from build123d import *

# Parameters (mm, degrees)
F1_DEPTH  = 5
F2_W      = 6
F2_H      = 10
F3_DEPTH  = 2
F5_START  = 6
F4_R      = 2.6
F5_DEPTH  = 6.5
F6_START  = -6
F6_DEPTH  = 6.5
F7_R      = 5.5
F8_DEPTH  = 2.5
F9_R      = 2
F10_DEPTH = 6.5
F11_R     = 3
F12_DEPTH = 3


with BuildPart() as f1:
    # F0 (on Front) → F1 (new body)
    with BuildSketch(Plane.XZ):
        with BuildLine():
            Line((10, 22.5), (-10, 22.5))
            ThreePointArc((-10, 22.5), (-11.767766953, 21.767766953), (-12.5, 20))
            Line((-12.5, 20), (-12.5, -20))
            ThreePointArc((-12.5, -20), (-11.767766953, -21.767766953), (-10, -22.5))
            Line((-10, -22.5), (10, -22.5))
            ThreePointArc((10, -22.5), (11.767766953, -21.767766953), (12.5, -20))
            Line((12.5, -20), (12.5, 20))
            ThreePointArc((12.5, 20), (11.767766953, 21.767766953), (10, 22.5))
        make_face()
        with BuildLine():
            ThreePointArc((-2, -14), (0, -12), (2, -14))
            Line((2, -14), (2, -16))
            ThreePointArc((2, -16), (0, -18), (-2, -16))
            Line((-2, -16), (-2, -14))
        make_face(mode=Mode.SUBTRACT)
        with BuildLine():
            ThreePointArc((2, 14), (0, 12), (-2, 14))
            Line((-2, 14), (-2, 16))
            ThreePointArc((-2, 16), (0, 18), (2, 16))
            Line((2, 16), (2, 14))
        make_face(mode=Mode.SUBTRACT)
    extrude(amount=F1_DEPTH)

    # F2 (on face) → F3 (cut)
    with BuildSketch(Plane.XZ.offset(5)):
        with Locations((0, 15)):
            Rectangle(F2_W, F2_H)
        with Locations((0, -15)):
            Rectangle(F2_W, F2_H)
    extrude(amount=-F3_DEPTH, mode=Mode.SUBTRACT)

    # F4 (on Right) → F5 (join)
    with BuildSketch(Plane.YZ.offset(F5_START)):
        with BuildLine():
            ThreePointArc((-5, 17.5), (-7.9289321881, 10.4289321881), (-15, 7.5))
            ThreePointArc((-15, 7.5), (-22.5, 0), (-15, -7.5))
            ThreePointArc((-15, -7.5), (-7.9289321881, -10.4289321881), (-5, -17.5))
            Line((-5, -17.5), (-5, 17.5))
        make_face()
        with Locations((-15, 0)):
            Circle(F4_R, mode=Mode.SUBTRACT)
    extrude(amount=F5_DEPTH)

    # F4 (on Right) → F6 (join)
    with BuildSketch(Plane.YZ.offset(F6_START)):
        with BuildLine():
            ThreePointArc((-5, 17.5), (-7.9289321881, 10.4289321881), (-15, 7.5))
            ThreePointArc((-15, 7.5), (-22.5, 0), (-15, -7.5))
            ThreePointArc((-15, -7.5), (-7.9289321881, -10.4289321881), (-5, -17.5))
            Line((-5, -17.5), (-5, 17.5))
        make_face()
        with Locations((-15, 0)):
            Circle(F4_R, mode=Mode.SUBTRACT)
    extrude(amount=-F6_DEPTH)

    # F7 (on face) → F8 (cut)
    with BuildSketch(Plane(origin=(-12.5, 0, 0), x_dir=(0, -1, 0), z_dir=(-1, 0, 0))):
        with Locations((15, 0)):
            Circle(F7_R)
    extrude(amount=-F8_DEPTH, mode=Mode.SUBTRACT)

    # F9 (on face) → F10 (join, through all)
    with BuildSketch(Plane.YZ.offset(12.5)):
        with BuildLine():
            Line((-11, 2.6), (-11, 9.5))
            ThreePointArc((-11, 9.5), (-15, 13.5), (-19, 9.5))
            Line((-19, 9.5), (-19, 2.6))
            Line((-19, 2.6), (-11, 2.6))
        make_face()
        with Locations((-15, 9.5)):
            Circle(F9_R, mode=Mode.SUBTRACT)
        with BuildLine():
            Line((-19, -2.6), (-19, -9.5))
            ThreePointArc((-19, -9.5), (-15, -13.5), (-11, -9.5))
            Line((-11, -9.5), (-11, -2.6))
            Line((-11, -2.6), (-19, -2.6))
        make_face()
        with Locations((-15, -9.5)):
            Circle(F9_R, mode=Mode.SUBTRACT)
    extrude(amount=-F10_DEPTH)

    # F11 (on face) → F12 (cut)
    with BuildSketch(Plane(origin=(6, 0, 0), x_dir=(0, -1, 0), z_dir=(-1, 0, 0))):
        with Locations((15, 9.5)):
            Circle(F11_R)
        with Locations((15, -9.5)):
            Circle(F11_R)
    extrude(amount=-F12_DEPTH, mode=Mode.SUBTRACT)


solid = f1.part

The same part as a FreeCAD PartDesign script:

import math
import FreeCAD as App
import Part
import Sketcher
Q = App.Units.Quantity

doc = App.newDocument("Part")
params = doc.addObject("Spreadsheet::Sheet", "Params")
for row, (alias, value) in enumerate([
    ("sketch1_radius", "2 mm"),
    ("sketch1_radius2", "2.5 mm"),
    ("sketch1_width", "20 mm"),
    ("sketch1_height", "40 mm"),
    ("sketch1_height2", "2 mm"),
    ("pad1_length", "5 mm"),
    ("sketch2_width", "6 mm"),
    ("sketch2_height", "10 mm"),
    ("pocket1_length", "2 mm"),
    ("sketch3_radius", "10 mm"),
    ("sketch3_diameter", "5.2 mm"),
    ("sketch3_radius2", "7.5 mm"),
    ("pad2_length", "6.5 mm"),
    ("sketch4_radius", "10 mm"),
    ("sketch4_diameter", "5.2 mm"),
    ("sketch4_radius2", "7.5 mm"),
    ("pad3_length", "6.5 mm"),
    ("sketch5_diameter", "11 mm"),
    ("pocket2_length", "2.5 mm"),
    ("sketch6_diameter", "4 mm"),
    ("sketch6_radius", "4 mm"),
    ("sketch6_height", "6.9 mm"),
    ("pad4_length", "6.5 mm"),
    ("sketch7_diameter", "6 mm"),
    ("pocket3_length", "3 mm"),
], start=1):
    params.set(f"A{row}", alias)
    params.set(f"B{row}", "=" + value)
    params.setAlias(f"B{row}", alias)

body = doc.addObject("PartDesign::Body", "Body")

# Sketch on XZ plane
sketch1 = doc.addObject("Sketcher::SketchObject", "Sketch")
body.addObject(sketch1)
sketch1.AttachmentSupport = (doc.XZ_Plane, [""])
sketch1.MapMode = "FlatFace"
sketch1.addGeometry(Part.LineSegment(App.Vector(10, 22.5, 0), App.Vector(-10, 22.5, 0)), False)
sketch1.addGeometry(Part.ArcOfCircle(Part.Circle(App.Vector(-10, 20, 0), App.Vector(0, 0, 1), 2.5), math.radians(90), math.radians(180)), False)
sketch1.addGeometry(Part.LineSegment(App.Vector(-12.5, 20, 0), App.Vector(-12.5, -20, 0)), False)
sketch1.addGeometry(Part.ArcOfCircle(Part.Circle(App.Vector(-10, -20, 0), App.Vector(0, 0, 1), 2.5), math.radians(180), math.radians(270)), False)
sketch1.addGeometry(Part.LineSegment(App.Vector(-10, -22.5, 0), App.Vector(10, -22.5, 0)), False)
sketch1.addGeometry(Part.ArcOfCircle(Part.Circle(App.Vector(10, -20, 0), App.Vector(0, 0, 1), 2.5), math.radians(-90), math.radians(0)), False)
sketch1.addGeometry(Part.LineSegment(App.Vector(12.5, -20, 0), App.Vector(12.5, 20, 0)), False)
sketch1.addGeometry(Part.ArcOfCircle(Part.Circle(App.Vector(10, 20, 0), App.Vector(0, 0, 1), 2.5), math.radians(0), math.radians(90)), False)
sketch1.addGeometry(Part.LineSegment(App.Vector(-2, -16, 0), App.Vector(-2, -14, 0)), False)
sketch1.addGeometry(Part.ArcOfCircle(Part.Circle(App.Vector(0, -14, 0), App.Vector(0, 0, 1), 2), math.radians(0), math.radians(180)), False)
sketch1.addGeometry(Part.LineSegment(App.Vector(2, -14, 0), App.Vector(2, -16, 0)), False)
sketch1.addGeometry(Part.ArcOfCircle(Part.Circle(App.Vector(0, -16, 0), App.Vector(0, 0, 1), 2), math.radians(180), math.radians(360)), False)
sketch1.addGeometry(Part.LineSegment(App.Vector(2, 16, 0), App.Vector(2, 14, 0)), False)
sketch1.addGeometry(Part.ArcOfCircle(Part.Circle(App.Vector(0, 14, 0), App.Vector(0, 0, 1), 2), math.radians(180), math.radians(360)), False)
sketch1.addGeometry(Part.LineSegment(App.Vector(-2, 14, 0), App.Vector(-2, 16, 0)), False)
sketch1.addGeometry(Part.ArcOfCircle(Part.Circle(App.Vector(0, 16, 0), App.Vector(0, 0, 1), 2), math.radians(0), math.radians(180)), False)
sketch1.addConstraint(Sketcher.Constraint("Tangent", 0, 2, 1, 1))
sketch1.addConstraint(Sketcher.Constraint("Tangent", 1, 2, 2, 1))
sketch1.addConstraint(Sketcher.Constraint("Tangent", 2, 2, 3, 1))
sketch1.addConstraint(Sketcher.Constraint("Tangent", 3, 2, 4, 1))
sketch1.addConstraint(Sketcher.Constraint("Tangent", 4, 2, 5, 1))
sketch1.addConstraint(Sketcher.Constraint("Tangent", 5, 2, 6, 1))
sketch1.addConstraint(Sketcher.Constraint("Tangent", 6, 2, 7, 1))
sketch1.addConstraint(Sketcher.Constraint("Tangent", 7, 2, 0, 1))
sketch1.addConstraint(Sketcher.Constraint("Tangent", 8, 2, 9, 2))
sketch1.addConstraint(Sketcher.Constraint("Tangent", 9, 1, 10, 1))
sketch1.addConstraint(Sketcher.Constraint("Tangent", 10, 2, 11, 2))
sketch1.addConstraint(Sketcher.Constraint("Tangent", 11, 1, 8, 1))
sketch1.addConstraint(Sketcher.Constraint("Tangent", 12, 2, 13, 2))
sketch1.addConstraint(Sketcher.Constraint("Tangent", 13, 1, 14, 1))
sketch1.addConstraint(Sketcher.Constraint("Tangent", 14, 2, 15, 2))
sketch1.addConstraint(Sketcher.Constraint("Tangent", 15, 1, 12, 1))
sketch1.addConstraint(Sketcher.Constraint("Horizontal", 0))
sketch1.addConstraint(Sketcher.Constraint("Vertical", 2))
sketch1.addConstraint(Sketcher.Constraint("Horizontal", 4))
sketch1.addConstraint(Sketcher.Constraint("Vertical", 6))
sketch1.addConstraint(Sketcher.Constraint("Vertical", 8))
sketch1.addConstraint(Sketcher.Constraint("Vertical", 10))
sketch1.addConstraint(Sketcher.Constraint("Vertical", 12))
sketch1.addConstraint(Sketcher.Constraint("Vertical", 14))
sketch1.addConstraint(Sketcher.Constraint("Equal", 1, 3))
sketch1.addConstraint(Sketcher.Constraint("Equal", 3, 5))
sketch1.addConstraint(Sketcher.Constraint("Equal", 5, 7))
sketch1.addConstraint(Sketcher.Constraint("Equal", 11, 13))
sketch1.addConstraint(Sketcher.Constraint("Symmetric", 1, 3, 5, 3, -1, 1))
sketch1.addConstraint(Sketcher.Constraint("Symmetric", 9, 3, 13, 3, -1, 1))
sketch1.addConstraint(Sketcher.Constraint("Symmetric", 11, 3, 15, 3, -1))
sketch1.addConstraint(Sketcher.Constraint("Radius", 9, Q("2 mm")))
sketch1.addConstraint(Sketcher.Constraint("Radius", 1, Q("2.5 mm")))
sketch1.addConstraint(Sketcher.Constraint("DistanceX", 0, 2, 0, 1, Q("20 mm")))
sketch1.addConstraint(Sketcher.Constraint("DistanceY", 2, 2, 2, 1, Q("40 mm")))
sketch1.addConstraint(Sketcher.Constraint("DistanceY", 8, 1, 8, 2, Q("2 mm")))
sketch1.addConstraint(Sketcher.Constraint("DistanceY", 9, 3, -1, 1, Q("14 mm")))
sketch1.setExpression("Constraints[31]", "Params.sketch1_radius")
sketch1.setExpression("Constraints[32]", "Params.sketch1_radius2")
sketch1.setExpression("Constraints[33]", "Params.sketch1_width")
sketch1.setExpression("Constraints[34]", "Params.sketch1_height")
sketch1.setExpression("Constraints[35]", "Params.sketch1_height2")
pad1 = doc.addObject("PartDesign::Pad", "Pad")
body.addObject(pad1)
pad1.Profile = sketch1
pad1.setExpression("Length", "Params.pad1_length")

# Sketch on XZ plane
sketch2 = doc.addObject("Sketcher::SketchObject", "Sketch001")
body.addObject(sketch2)
sketch2.AttachmentSupport = (doc.XZ_Plane, [""])
sketch2.MapMode = "FlatFace"
sketch2.AttachmentOffset = App.Placement(App.Vector(0, 0, 5), App.Rotation())
sketch2.addGeometry(Part.LineSegment(App.Vector(-3, 20, 0), App.Vector(-3, 10, 0)), False)
sketch2.addGeometry(Part.LineSegment(App.Vector(-3, 10, 0), App.Vector(3, 10, 0)), False)
sketch2.addGeometry(Part.LineSegment(App.Vector(3, 10, 0), App.Vector(3, 20, 0)), False)
sketch2.addGeometry(Part.LineSegment(App.Vector(3, 20, 0), App.Vector(-3, 20, 0)), False)
sketch2.addGeometry(Part.LineSegment(App.Vector(-3, -10, 0), App.Vector(-3, -20, 0)), False)
sketch2.addGeometry(Part.LineSegment(App.Vector(-3, -20, 0), App.Vector(3, -20, 0)), False)
sketch2.addGeometry(Part.LineSegment(App.Vector(3, -20, 0), App.Vector(3, -10, 0)), False)
sketch2.addGeometry(Part.LineSegment(App.Vector(3, -10, 0), App.Vector(-3, -10, 0)), False)
sketch2.addConstraint(Sketcher.Constraint("Coincident", 0, 2, 1, 1))
sketch2.addConstraint(Sketcher.Constraint("Coincident", 1, 2, 2, 1))
sketch2.addConstraint(Sketcher.Constraint("Coincident", 2, 2, 3, 1))
sketch2.addConstraint(Sketcher.Constraint("Coincident", 3, 2, 0, 1))
sketch2.addConstraint(Sketcher.Constraint("Coincident", 4, 2, 5, 1))
sketch2.addConstraint(Sketcher.Constraint("Coincident", 5, 2, 6, 1))
sketch2.addConstraint(Sketcher.Constraint("Coincident", 6, 2, 7, 1))
sketch2.addConstraint(Sketcher.Constraint("Coincident", 7, 2, 4, 1))
sketch2.addConstraint(Sketcher.Constraint("Vertical", 0))
sketch2.addConstraint(Sketcher.Constraint("Horizontal", 1))
sketch2.addConstraint(Sketcher.Constraint("Vertical", 2))
sketch2.addConstraint(Sketcher.Constraint("Horizontal", 3))
sketch2.addConstraint(Sketcher.Constraint("Vertical", 4))
sketch2.addConstraint(Sketcher.Constraint("Horizontal", 5))
sketch2.addConstraint(Sketcher.Constraint("Vertical", 6))
sketch2.addConstraint(Sketcher.Constraint("Horizontal", 7))
sketch2.addConstraint(Sketcher.Constraint("Symmetric", 2, 2, 4, 2, -1, 1))
sketch2.addConstraint(Sketcher.Constraint("Symmetric", 0, 2, 6, 2, -1, 1))
sketch2.addConstraint(Sketcher.Constraint("Vertical", 3, 2, 4, 2))
sketch2.addConstraint(Sketcher.Constraint("DistanceX", 1, 1, 1, 2, Q("6 mm")))
sketch2.addConstraint(Sketcher.Constraint("DistanceY", 0, 2, 0, 1, Q("10 mm")))
sketch2.addConstraint(Sketcher.Constraint("DistanceY", -1, 1, 0, 2, Q("10 mm")))
sketch2.setExpression("Constraints[19]", "Params.sketch2_width")
sketch2.setExpression("Constraints[20]", "Params.sketch2_height")
pocket1 = doc.addObject("PartDesign::Pocket", "Pocket")
body.addObject(pocket1)
pocket1.Profile = sketch2
pocket1.setExpression("Length", "Params.pocket1_length")

# Sketch on YZ plane
sketch3 = doc.addObject("Sketcher::SketchObject", "Sketch002")
body.addObject(sketch3)
sketch3.AttachmentSupport = (doc.YZ_Plane, [""])
sketch3.MapMode = "FlatFace"
sketch3.AttachmentOffset = App.Placement(App.Vector(0, 0, 6), App.Rotation())
sketch3.addGeometry(Part.ArcOfCircle(Part.Circle(App.Vector(-15, 17.5, 0), App.Vector(0, 0, 1), 10), math.radians(-90), math.radians(0)), False)
sketch3.addGeometry(Part.ArcOfCircle(Part.Circle(App.Vector(-15, 0, 0), App.Vector(0, 0, 1), 7.5), math.radians(90), math.radians(270)), False)
sketch3.addGeometry(Part.ArcOfCircle(Part.Circle(App.Vector(-15, -17.5, 0), App.Vector(0, 0, 1), 10), math.radians(0), math.radians(90)), False)
sketch3.addGeometry(Part.LineSegment(App.Vector(-5, -17.5, 0), App.Vector(-5, 17.5, 0)), False)
sketch3.addGeometry(Part.Circle(App.Vector(-15, 0, 0), App.Vector(0, 0, 1), 2.6), False)
sketch3.addConstraint(Sketcher.Constraint("Tangent", 0, 1, 1, 1))
sketch3.addConstraint(Sketcher.Constraint("Tangent", 1, 2, 2, 2))
sketch3.addConstraint(Sketcher.Constraint("Tangent", 2, 1, 3, 1))
sketch3.addConstraint(Sketcher.Constraint("Tangent", 3, 2, 0, 2))
sketch3.addConstraint(Sketcher.Constraint("Vertical", 3))
sketch3.addConstraint(Sketcher.Constraint("Coincident", 4, 3, 1, 3))
sketch3.addConstraint(Sketcher.Constraint("Equal", 0, 2))
sketch3.addConstraint(Sketcher.Constraint("PointOnObject", 1, 3, -1))
sketch3.addConstraint(Sketcher.Constraint("Vertical", 0, 3, 1, 3))
sketch3.addConstraint(Sketcher.Constraint("Radius", 0, Q("10 mm")))
sketch3.addConstraint(Sketcher.Constraint("Diameter", 4, Q("5.2 mm")))
sketch3.addConstraint(Sketcher.Constraint("Radius", 1, Q("7.5 mm")))
sketch3.addConstraint(Sketcher.Constraint("DistanceX", 0, 3, -1, 1, Q("15 mm")))
sketch3.setExpression("Constraints[9]", "Params.sketch3_radius")
sketch3.setExpression("Constraints[10]", "Params.sketch3_diameter")
sketch3.setExpression("Constraints[11]", "Params.sketch3_radius2")
pad2 = doc.addObject("PartDesign::Pad", "Pad001")
body.addObject(pad2)
pad2.Profile = sketch3
pad2.setExpression("Length", "Params.pad2_length")

# Sketch on YZ plane
sketch4 = doc.addObject("Sketcher::SketchObject", "Sketch003")
body.addObject(sketch4)
sketch4.AttachmentSupport = (doc.YZ_Plane, [""])
sketch4.MapMode = "FlatFace"
sketch4.AttachmentOffset = App.Placement(App.Vector(0, 0, -6), App.Rotation())
sketch4.addGeometry(Part.ArcOfCircle(Part.Circle(App.Vector(-15, 17.5, 0), App.Vector(0, 0, 1), 10), math.radians(-90), math.radians(0)), False)
sketch4.addGeometry(Part.ArcOfCircle(Part.Circle(App.Vector(-15, 0, 0), App.Vector(0, 0, 1), 7.5), math.radians(90), math.radians(270)), False)
sketch4.addGeometry(Part.ArcOfCircle(Part.Circle(App.Vector(-15, -17.5, 0), App.Vector(0, 0, 1), 10), math.radians(0), math.radians(90)), False)
sketch4.addGeometry(Part.LineSegment(App.Vector(-5, -17.5, 0), App.Vector(-5, 17.5, 0)), False)
sketch4.addGeometry(Part.Circle(App.Vector(-15, 0, 0), App.Vector(0, 0, 1), 2.6), False)
sketch4.addConstraint(Sketcher.Constraint("Tangent", 0, 1, 1, 1))
sketch4.addConstraint(Sketcher.Constraint("Tangent", 1, 2, 2, 2))
sketch4.addConstraint(Sketcher.Constraint("Tangent", 2, 1, 3, 1))
sketch4.addConstraint(Sketcher.Constraint("Tangent", 3, 2, 0, 2))
sketch4.addConstraint(Sketcher.Constraint("Vertical", 3))
sketch4.addConstraint(Sketcher.Constraint("Coincident", 4, 3, 1, 3))
sketch4.addConstraint(Sketcher.Constraint("Equal", 0, 2))
sketch4.addConstraint(Sketcher.Constraint("PointOnObject", 1, 3, -1))
sketch4.addConstraint(Sketcher.Constraint("Vertical", 0, 3, 1, 3))
sketch4.addConstraint(Sketcher.Constraint("Radius", 0, Q("10 mm")))
sketch4.addConstraint(Sketcher.Constraint("Diameter", 4, Q("5.2 mm")))
sketch4.addConstraint(Sketcher.Constraint("Radius", 1, Q("7.5 mm")))
sketch4.addConstraint(Sketcher.Constraint("DistanceX", 0, 3, -1, 1, Q("15 mm")))
sketch4.setExpression("Constraints[9]", "Params.sketch4_radius")
sketch4.setExpression("Constraints[10]", "Params.sketch4_diameter")
sketch4.setExpression("Constraints[11]", "Params.sketch4_radius2")
pad3 = doc.addObject("PartDesign::Pad", "Pad002")
body.addObject(pad3)
pad3.Profile = sketch4
pad3.setExpression("Length", "Params.pad3_length")
pad3.Reversed = True

# Sketch on YZ plane
sketch5 = doc.addObject("Sketcher::SketchObject", "Sketch004")
body.addObject(sketch5)
sketch5.AttachmentSupport = (doc.YZ_Plane, [""])
sketch5.MapMode = "FlatFace"
sketch5.AttachmentOffset = App.Placement(App.Vector(0, 0, -12.5), App.Rotation())
sketch5.addGeometry(Part.Circle(App.Vector(-15, 0, 0), App.Vector(0, 0, 1), 6), False)
sketch5.addConstraint(Sketcher.Constraint("PointOnObject", 0, 3, -1))
sketch5.addConstraint(Sketcher.Constraint("Diameter", 0, Q("11 mm")))
sketch5.addConstraint(Sketcher.Constraint("DistanceX", 0, 3, -1, 1, Q("15 mm")))
sketch5.setExpression("Constraints[1]", "Params.sketch5_diameter")
pocket2 = doc.addObject("PartDesign::Pocket", "Pocket001")
body.addObject(pocket2)
pocket2.Profile = sketch5
pocket2.setExpression("Length", "Params.pocket2_length")
pocket2.Reversed = True

# Sketch on YZ plane
sketch6 = doc.addObject("Sketcher::SketchObject", "Sketch005")
body.addObject(sketch6)
sketch6.AttachmentSupport = (doc.YZ_Plane, [""])
sketch6.MapMode = "FlatFace"
sketch6.AttachmentOffset = App.Placement(App.Vector(0, 0, 12.5), App.Rotation())
sketch6.addGeometry(Part.LineSegment(App.Vector(-11, 2.6, 0), App.Vector(-11, 9.5, 0)), False)
sketch6.addGeometry(Part.ArcOfCircle(Part.Circle(App.Vector(-15, 9.5, 0), App.Vector(0, 0, 1), 4), math.radians(0), math.radians(180)), False)
sketch6.addGeometry(Part.LineSegment(App.Vector(-19, 9.5, 0), App.Vector(-19, 2.6, 0)), False)
sketch6.addGeometry(Part.LineSegment(App.Vector(-19, 2.6, 0), App.Vector(-11, 2.6, 0)), False)
sketch6.addGeometry(Part.Circle(App.Vector(-15, 9.5, 0), App.Vector(0, 0, 1), 2), False)
sketch6.addGeometry(Part.LineSegment(App.Vector(-19, -2.6, 0), App.Vector(-19, -9.5, 0)), False)
sketch6.addGeometry(Part.ArcOfCircle(Part.Circle(App.Vector(-15, -9.5, 0), App.Vector(0, 0, 1), 4), math.radians(180), math.radians(360)), False)
sketch6.addGeometry(Part.LineSegment(App.Vector(-11, -9.5, 0), App.Vector(-11, -2.6, 0)), False)
sketch6.addGeometry(Part.LineSegment(App.Vector(-11, -2.6, 0), App.Vector(-19, -2.6, 0)), False)
sketch6.addGeometry(Part.Circle(App.Vector(-15, -9.5, 0), App.Vector(0, 0, 1), 2), False)
sketch6.addConstraint(Sketcher.Constraint("Tangent", 0, 2, 1, 1))
sketch6.addConstraint(Sketcher.Constraint("Tangent", 1, 2, 2, 1))
sketch6.addConstraint(Sketcher.Constraint("Coincident", 2, 2, 3, 1))
sketch6.addConstraint(Sketcher.Constraint("Coincident", 3, 2, 0, 1))
sketch6.addConstraint(Sketcher.Constraint("Tangent", 5, 2, 6, 1))
sketch6.addConstraint(Sketcher.Constraint("Tangent", 6, 2, 7, 1))
sketch6.addConstraint(Sketcher.Constraint("Coincident", 7, 2, 8, 1))
sketch6.addConstraint(Sketcher.Constraint("Coincident", 8, 2, 5, 1))
sketch6.addConstraint(Sketcher.Constraint("Vertical", 0))
sketch6.addConstraint(Sketcher.Constraint("Vertical", 2))
sketch6.addConstraint(Sketcher.Constraint("Horizontal", 3))
sketch6.addConstraint(Sketcher.Constraint("Vertical", 5))
sketch6.addConstraint(Sketcher.Constraint("Vertical", 7))
sketch6.addConstraint(Sketcher.Constraint("Horizontal", 8))
sketch6.addConstraint(Sketcher.Constraint("Coincident", 4, 3, 1, 3))
sketch6.addConstraint(Sketcher.Constraint("Coincident", 9, 3, 6, 3))
sketch6.addConstraint(Sketcher.Constraint("Equal", 1, 6))
sketch6.addConstraint(Sketcher.Constraint("Equal", 4, 9))
sketch6.addConstraint(Sketcher.Constraint("Symmetric", 1, 3, 6, 3, -1))
sketch6.addConstraint(Sketcher.Constraint("Equal", 2, 5))
sketch6.addConstraint(Sketcher.Constraint("Diameter", 4, Q("4 mm")))
sketch6.addConstraint(Sketcher.Constraint("Radius", 1, Q("4 mm")))
sketch6.addConstraint(Sketcher.Constraint("DistanceY", 0, 1, 0, 2, Q("6.9 mm")))
sketch6.addConstraint(Sketcher.Constraint("DistanceX", 1, 3, -1, 1, Q("15 mm")))
sketch6.addConstraint(Sketcher.Constraint("DistanceY", 6, 3, 1, 3, Q("19 mm")))
sketch6.setExpression("Constraints[20]", "Params.sketch6_diameter")
sketch6.setExpression("Constraints[21]", "Params.sketch6_radius")
sketch6.setExpression("Constraints[22]", "Params.sketch6_height")
pad4 = doc.addObject("PartDesign::Pad", "Pad003")
body.addObject(pad4)
pad4.Profile = sketch6
pad4.setExpression("Length", "Params.pad4_length")
pad4.Reversed = True

# Sketch on YZ plane
sketch7 = doc.addObject("Sketcher::SketchObject", "Sketch006")
body.addObject(sketch7)
sketch7.AttachmentSupport = (doc.YZ_Plane, [""])
sketch7.MapMode = "FlatFace"
sketch7.AttachmentOffset = App.Placement(App.Vector(0, 0, 6), App.Rotation())
sketch7.addGeometry(Part.Circle(App.Vector(-15, 9.5, 0), App.Vector(0, 0, 1), 3), False)
sketch7.addGeometry(Part.Circle(App.Vector(-15, -9.5, 0), App.Vector(0, 0, 1), 3), False)
sketch7.addConstraint(Sketcher.Constraint("Equal", 0, 1))
sketch7.addConstraint(Sketcher.Constraint("Symmetric", 0, 3, 1, 3, -1))
sketch7.addConstraint(Sketcher.Constraint("Diameter", 0, Q("6 mm")))
sketch7.addConstraint(Sketcher.Constraint("DistanceX", 0, 3, -1, 1, Q("15 mm")))
sketch7.addConstraint(Sketcher.Constraint("DistanceY", 1, 3, 0, 3, Q("19 mm")))
sketch7.setExpression("Constraints[2]", "Params.sketch7_diameter")
pocket3 = doc.addObject("PartDesign::Pocket", "Pocket002")
body.addObject(pocket3)
pocket3.Profile = sketch7
pocket3.setExpression("Length", "Params.pocket3_length")
pocket3.Reversed = True

doc.recompute()
